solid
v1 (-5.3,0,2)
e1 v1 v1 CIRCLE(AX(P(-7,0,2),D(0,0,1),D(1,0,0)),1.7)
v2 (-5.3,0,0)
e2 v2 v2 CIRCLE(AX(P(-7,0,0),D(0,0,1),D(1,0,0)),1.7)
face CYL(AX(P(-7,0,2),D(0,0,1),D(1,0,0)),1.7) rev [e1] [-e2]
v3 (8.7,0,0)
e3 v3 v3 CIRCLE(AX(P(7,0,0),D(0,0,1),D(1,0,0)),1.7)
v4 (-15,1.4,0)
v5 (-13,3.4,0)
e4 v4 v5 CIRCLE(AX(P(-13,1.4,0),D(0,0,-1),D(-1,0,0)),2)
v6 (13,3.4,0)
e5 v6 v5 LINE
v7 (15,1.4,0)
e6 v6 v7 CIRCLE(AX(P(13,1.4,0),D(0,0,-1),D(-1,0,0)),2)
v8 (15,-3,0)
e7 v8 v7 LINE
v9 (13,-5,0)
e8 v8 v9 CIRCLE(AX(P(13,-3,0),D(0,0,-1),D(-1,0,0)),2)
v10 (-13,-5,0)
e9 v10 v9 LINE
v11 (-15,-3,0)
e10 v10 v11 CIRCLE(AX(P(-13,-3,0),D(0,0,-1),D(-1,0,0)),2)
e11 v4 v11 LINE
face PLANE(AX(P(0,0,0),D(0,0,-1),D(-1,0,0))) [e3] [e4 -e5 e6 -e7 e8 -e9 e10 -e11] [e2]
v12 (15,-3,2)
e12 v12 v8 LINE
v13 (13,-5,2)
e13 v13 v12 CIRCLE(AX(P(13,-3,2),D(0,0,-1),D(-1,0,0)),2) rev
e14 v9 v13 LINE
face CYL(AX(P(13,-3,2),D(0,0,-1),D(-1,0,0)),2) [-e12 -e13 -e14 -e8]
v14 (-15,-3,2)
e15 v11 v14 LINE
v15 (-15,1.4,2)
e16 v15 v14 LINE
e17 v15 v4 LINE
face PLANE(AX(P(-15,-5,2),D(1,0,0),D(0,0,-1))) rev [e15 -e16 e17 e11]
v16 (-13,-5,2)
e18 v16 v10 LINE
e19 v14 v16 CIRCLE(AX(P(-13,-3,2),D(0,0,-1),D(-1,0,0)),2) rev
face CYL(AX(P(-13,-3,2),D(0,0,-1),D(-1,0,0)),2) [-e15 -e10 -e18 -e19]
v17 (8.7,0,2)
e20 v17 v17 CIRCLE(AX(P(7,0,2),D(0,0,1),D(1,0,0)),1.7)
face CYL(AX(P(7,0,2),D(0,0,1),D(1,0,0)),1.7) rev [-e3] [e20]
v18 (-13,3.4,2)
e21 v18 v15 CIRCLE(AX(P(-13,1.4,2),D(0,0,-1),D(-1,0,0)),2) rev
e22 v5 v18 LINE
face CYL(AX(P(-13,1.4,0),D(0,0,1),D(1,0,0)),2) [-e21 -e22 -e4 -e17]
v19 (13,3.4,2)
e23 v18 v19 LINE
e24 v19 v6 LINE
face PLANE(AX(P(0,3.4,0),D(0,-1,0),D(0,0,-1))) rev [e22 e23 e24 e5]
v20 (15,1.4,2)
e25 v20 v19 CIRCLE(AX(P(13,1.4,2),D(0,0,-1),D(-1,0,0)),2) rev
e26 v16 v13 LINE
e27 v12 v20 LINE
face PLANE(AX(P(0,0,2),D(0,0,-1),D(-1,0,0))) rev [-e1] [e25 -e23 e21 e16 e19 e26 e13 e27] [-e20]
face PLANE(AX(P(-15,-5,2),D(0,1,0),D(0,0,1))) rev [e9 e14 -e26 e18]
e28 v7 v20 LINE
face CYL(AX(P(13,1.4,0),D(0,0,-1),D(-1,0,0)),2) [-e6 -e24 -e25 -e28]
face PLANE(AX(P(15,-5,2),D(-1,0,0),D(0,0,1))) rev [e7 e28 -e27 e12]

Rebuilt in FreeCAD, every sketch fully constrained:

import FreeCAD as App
import Part
import Sketcher

V = App.Vector
Q = App.Units.Quantity


def edges_at(feature, points):
    """Names of the edges that pass closest to the given points."""
    edges = feature.Shape.Edges
    near = lambda p: min(range(len(edges)), key=lambda i: edges[i].distToShape(Part.Vertex(*p))[0])
    return sorted({f"Edge{near(p) + 1}" for p in points})

doc = App.newDocument("Part")
body = doc.addObject("PartDesign::Body", "Body")

# Sketch on XY plane
sketch1 = body.newObject("Sketcher::SketchObject", "Sketch")
sketch1.AttachmentSupport = (doc.getObject("XY_Plane"), [""])
sketch1.MapMode = "FlatFace"
sketch1.addGeometry([
    Part.LineSegment(V(-15, 5, 0), V(-15, -5, 0)),
    Part.LineSegment(V(-15, -5, 0), V(15, -5, 0)),
    Part.LineSegment(V(15, -5, 0), V(15, 5, 0)),
    Part.LineSegment(V(15, 5, 0), V(-15, 5, 0)),
], False)
sketch1.addConstraint([
    Sketcher.Constraint("Coincident", 0, 2, 1, 1),
    Sketcher.Constraint("Coincident", 1, 2, 2, 1),
    Sketcher.Constraint("Coincident", 2, 2, 3, 1),
    Sketcher.Constraint("Coincident", 3, 2, 0, 1),
    Sketcher.Constraint("Vertical", 0),
    Sketcher.Constraint("Horizontal", 1),
    Sketcher.Constraint("Vertical", 2),
    Sketcher.Constraint("Horizontal", 3),
    Sketcher.Constraint("Symmetric", 0, 2, 2, 2, -1, 1),
    Sketcher.Constraint("DistanceX", 1, 1, 1, 2, Q("30 mm")),
    Sketcher.Constraint("DistanceY", 0, 2, 0, 1, Q("10 mm")),
])
pad1 = body.newObject("PartDesign::Pad", "Pad")
pad1.Profile = sketch1
pad1.Length = 2

# Sketch on XY plane
sketch2 = body.newObject("Sketcher::SketchObject", "Sketch001")
sketch2.AttachmentSupport = (doc.getObject("XY_Plane"), [""])
sketch2.MapMode = "FlatFace"
sketch2.AttachmentOffset = App.Placement(V(0, 0, 2), App.Rotation())
sketch2.addGeometry([
    Part.Circle(V(-7, 0, 0), V(0, 0, 1), 1.7),
    Part.Circle(V(7, 0, 0), V(0, 0, 1), 1.7),
], False)
sketch2.addConstraint([
    Sketcher.Constraint("Equal", 0, 1),
    Sketcher.Constraint("Symmetric", 0, 3, 1, 3, -1, 1),
    Sketcher.Constraint("PointOnObject", 0, 3, -1),
    Sketcher.Constraint("Diameter", 0, Q("3.4 mm")),
    Sketcher.Constraint("DistanceX", 0, 3, -1, 1, Q("7 mm")),
])
doc.recompute()
hole = body.newObject("PartDesign::Hole", "Hole")
hole.Profile = sketch2
hole.ThreadType = "None"
hole.Diameter = 3.4
hole.DepthType = "ThroughAll"

# Sketch on XZ plane
sketch3 = body.newObject("Sketcher::SketchObject", "Sketch002")
sketch3.AttachmentSupport = (doc.getObject("XZ_Plane"), [""])
sketch3.MapMode = "FlatFace"
sketch3.AttachmentOffset = App.Placement(V(0, 0, -5), App.Rotation())
sketch3.addGeometry([
    Part.LineSegment(V(-15, 0, 0), V(-15, 2, 0)),
    Part.LineSegment(V(-15, 2, 0), V(15, 2, 0)),
    Part.LineSegment(V(15, 2, 0), V(15, 0, 0)),
    Part.LineSegment(V(15, 0, 0), V(-15, 0, 0)),
], False)
sketch3.addConstraint([
    Sketcher.Constraint("Coincident", 0, 2, 1, 1),
    Sketcher.Constraint("Coincident", 1, 2, 2, 1),
    Sketcher.Constraint("Coincident", 2, 2, 3, 1),
    Sketcher.Constraint("Coincident", 3, 2, 0, 1),
    Sketcher.Constraint("Vertical", 0),
    Sketcher.Constraint("Horizontal", 1),
    Sketcher.Constraint("Vertical", 2),
    Sketcher.Constraint("Horizontal", 3),
    Sketcher.Constraint("Symmetric", 2, 2, 3, 2, -1, 1),
    Sketcher.Constraint("DistanceX", 1, 1, 1, 2, Q("30 mm")),
    Sketcher.Constraint("DistanceY", 0, 1, 0, 2, Q("2 mm")),
])
pocket1 = body.newObject("PartDesign::Pocket", "Pocket")
pocket1.Profile = sketch3
pocket1.Length = 1.6
pocket1.Reversed = True
doc.recompute()

fillet = body.newObject("PartDesign::Fillet", "Fillet")
fillet.Base = (pocket1, edges_at(pocket1, [
    (15, 3.4, 1),
    (-15, 3.4, 1),
    (15, -5, 1),
    (-15, -5, 1),
]))
fillet.Radius = 2

doc.recompute()
